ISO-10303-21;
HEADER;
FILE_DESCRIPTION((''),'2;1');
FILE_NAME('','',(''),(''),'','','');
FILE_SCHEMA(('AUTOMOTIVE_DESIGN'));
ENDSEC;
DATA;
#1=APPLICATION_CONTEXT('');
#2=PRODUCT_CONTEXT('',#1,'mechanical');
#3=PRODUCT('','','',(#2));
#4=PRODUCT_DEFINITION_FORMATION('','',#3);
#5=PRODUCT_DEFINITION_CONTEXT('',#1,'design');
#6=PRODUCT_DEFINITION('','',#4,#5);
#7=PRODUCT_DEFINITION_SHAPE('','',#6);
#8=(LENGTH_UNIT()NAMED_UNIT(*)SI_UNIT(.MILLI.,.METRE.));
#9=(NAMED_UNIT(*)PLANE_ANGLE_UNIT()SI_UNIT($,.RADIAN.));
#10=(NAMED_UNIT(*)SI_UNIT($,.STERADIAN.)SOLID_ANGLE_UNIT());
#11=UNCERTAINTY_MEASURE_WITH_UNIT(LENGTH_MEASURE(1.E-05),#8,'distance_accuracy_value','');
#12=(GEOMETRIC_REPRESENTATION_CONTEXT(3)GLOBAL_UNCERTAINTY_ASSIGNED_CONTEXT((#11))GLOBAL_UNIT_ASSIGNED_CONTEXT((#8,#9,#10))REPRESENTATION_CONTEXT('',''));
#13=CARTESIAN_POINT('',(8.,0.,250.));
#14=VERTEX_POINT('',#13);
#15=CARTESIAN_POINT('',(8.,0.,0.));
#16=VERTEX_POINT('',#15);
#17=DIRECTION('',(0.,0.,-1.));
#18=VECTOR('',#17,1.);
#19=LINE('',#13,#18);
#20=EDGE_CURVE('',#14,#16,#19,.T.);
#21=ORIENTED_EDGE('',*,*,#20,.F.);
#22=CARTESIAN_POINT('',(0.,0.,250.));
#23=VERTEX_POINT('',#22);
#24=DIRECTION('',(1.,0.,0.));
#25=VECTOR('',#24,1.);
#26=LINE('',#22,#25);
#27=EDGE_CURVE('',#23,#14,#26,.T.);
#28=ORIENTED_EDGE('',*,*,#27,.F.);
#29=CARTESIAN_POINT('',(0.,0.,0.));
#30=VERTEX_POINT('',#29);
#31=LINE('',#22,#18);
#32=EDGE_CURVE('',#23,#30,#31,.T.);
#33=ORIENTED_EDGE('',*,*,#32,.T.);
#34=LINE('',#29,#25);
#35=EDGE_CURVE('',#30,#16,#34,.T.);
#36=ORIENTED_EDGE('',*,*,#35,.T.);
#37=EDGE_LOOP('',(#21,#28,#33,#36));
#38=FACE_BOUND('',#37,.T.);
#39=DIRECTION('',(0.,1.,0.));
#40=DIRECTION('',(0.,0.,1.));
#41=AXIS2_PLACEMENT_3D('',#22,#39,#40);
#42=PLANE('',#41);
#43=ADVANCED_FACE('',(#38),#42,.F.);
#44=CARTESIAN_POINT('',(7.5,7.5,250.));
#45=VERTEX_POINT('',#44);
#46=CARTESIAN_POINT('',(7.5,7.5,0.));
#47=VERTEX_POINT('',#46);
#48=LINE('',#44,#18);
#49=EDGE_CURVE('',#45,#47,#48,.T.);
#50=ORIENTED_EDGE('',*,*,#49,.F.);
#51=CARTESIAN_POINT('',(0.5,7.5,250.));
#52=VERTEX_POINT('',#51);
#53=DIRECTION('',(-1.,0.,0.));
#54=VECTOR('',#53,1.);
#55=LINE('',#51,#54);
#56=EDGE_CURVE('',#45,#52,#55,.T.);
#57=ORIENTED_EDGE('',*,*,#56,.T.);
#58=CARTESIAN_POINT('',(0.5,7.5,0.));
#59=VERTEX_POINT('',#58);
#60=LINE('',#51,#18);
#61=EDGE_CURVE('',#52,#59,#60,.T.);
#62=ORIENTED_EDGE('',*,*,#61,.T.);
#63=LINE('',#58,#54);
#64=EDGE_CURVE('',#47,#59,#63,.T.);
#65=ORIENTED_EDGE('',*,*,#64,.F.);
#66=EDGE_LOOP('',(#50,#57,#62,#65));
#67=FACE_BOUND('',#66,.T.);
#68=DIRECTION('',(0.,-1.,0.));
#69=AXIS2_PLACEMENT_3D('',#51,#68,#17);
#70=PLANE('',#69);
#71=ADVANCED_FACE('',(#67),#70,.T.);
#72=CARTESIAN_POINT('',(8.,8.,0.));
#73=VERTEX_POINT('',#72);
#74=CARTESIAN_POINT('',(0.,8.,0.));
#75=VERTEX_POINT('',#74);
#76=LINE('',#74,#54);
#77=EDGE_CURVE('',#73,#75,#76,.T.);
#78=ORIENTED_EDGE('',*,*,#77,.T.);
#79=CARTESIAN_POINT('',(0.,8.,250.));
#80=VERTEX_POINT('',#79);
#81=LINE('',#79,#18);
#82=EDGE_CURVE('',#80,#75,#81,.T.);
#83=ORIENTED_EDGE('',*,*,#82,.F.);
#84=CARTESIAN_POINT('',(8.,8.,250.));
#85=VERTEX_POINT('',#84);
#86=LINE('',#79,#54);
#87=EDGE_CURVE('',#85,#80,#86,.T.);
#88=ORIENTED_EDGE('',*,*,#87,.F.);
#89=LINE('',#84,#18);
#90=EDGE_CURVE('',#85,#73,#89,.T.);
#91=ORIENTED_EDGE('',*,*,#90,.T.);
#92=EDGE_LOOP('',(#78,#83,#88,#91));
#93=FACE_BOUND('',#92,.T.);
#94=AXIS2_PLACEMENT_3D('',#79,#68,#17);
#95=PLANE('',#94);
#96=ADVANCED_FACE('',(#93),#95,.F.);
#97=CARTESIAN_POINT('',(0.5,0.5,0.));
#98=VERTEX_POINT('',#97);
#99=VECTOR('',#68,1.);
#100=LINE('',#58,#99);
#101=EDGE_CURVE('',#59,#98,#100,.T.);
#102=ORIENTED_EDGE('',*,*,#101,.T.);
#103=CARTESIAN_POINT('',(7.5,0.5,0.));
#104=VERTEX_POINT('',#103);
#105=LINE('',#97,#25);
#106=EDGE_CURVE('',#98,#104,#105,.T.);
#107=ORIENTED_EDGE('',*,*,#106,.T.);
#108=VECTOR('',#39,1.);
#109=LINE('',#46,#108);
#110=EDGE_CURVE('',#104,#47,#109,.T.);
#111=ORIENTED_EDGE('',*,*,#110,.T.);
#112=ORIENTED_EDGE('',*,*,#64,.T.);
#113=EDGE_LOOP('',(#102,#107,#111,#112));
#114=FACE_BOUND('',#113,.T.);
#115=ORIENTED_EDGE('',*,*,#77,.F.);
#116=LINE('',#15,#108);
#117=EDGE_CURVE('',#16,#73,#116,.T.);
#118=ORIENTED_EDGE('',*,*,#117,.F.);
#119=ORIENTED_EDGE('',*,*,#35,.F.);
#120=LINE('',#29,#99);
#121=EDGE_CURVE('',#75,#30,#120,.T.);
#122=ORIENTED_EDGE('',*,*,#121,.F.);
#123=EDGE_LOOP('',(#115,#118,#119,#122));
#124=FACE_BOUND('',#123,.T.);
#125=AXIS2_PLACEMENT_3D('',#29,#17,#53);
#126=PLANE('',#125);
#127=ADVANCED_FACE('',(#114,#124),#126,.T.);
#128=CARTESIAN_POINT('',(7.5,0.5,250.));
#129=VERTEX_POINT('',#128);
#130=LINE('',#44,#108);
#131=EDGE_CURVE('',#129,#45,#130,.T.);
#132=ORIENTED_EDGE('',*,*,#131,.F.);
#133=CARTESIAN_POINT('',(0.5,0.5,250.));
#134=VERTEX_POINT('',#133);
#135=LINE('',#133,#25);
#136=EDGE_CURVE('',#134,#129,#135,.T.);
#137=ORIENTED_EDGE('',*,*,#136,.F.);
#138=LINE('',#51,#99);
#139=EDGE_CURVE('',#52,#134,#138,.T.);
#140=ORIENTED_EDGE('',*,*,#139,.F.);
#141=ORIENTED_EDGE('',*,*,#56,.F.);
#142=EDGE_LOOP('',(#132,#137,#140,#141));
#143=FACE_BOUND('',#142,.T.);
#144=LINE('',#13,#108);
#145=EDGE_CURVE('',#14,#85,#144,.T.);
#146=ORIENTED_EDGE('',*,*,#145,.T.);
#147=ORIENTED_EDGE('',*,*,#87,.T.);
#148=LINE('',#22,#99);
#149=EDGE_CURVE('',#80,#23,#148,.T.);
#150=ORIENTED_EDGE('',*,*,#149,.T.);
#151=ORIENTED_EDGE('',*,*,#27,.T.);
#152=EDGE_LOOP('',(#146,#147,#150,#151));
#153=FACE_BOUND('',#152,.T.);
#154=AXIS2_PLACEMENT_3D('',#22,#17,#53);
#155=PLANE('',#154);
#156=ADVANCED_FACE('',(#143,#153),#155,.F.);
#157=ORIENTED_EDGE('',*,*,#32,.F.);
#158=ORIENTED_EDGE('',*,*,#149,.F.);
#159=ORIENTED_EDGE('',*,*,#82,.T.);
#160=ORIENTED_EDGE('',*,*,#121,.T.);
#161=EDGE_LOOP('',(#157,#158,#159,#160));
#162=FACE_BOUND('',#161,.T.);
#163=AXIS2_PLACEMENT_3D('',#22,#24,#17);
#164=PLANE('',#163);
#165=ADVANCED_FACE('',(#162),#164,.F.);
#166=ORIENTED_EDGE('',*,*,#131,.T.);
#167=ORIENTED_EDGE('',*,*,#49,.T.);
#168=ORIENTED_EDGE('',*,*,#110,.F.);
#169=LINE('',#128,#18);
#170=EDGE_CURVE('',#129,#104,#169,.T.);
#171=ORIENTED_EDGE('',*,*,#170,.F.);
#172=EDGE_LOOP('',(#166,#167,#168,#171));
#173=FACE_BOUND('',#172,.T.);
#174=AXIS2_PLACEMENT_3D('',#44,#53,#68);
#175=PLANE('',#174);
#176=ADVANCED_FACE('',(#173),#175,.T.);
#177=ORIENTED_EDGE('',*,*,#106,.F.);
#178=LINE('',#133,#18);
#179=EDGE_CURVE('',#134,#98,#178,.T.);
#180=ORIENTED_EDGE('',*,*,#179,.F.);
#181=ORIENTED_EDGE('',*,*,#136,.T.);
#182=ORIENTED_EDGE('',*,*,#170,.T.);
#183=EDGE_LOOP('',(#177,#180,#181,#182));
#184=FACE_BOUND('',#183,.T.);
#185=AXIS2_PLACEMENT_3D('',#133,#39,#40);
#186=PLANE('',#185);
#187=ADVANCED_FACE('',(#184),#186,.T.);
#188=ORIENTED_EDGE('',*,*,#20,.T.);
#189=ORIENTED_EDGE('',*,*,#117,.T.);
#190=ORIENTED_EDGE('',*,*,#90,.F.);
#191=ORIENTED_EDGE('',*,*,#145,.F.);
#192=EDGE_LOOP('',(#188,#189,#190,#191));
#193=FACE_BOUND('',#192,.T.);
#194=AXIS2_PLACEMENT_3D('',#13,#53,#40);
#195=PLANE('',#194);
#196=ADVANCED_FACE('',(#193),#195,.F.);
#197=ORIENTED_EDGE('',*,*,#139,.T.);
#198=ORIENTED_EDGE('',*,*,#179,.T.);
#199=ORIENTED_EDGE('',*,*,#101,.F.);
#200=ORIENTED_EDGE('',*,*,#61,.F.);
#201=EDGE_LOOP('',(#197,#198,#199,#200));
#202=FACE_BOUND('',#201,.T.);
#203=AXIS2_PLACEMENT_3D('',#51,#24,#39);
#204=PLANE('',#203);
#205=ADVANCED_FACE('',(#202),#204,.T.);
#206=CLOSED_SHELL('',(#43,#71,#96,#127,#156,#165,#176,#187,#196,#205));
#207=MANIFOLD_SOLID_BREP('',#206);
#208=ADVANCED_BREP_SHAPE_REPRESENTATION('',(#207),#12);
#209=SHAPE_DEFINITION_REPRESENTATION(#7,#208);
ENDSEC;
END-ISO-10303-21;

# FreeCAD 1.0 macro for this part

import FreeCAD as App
import Part
import Sketcher

V = App.Vector
Q = App.Units.Quantity

doc = App.newDocument("Part")
body = doc.addObject("PartDesign::Body", "Body")

# Sketch on XY plane
sketch1 = body.newObject("Sketcher::SketchObject", "Sketch")
sketch1.AttachmentSupport = (doc.getObject("XY_Plane"), [""])
sketch1.MapMode = "FlatFace"
sketch1.addGeometry([
    Part.LineSegment(V(0, 8, 0), V(0, 0, 0)),  # 0
    Part.LineSegment(V(0, 0, 0), V(8, 0, 0)),  # 1
    Part.LineSegment(V(8, 0, 0), V(8, 8, 0)),  # 2
    Part.LineSegment(V(8, 8, 0), V(0, 8, 0)),  # 3
    Part.LineSegment(V(7.5, 0.5, 0), V(0.5, 0.5, 0)),  # 4
    Part.LineSegment(V(0.5, 0.5, 0), V(0.5, 7.5, 0)),  # 5
    Part.LineSegment(V(0.5, 7.5, 0), V(7.5, 7.5, 0)),  # 6
    Part.LineSegment(V(7.5, 7.5, 0), V(7.5, 0.5, 0)),  # 7
], False)
sketch1.addConstraint([
    Sketcher.Constraint("Coincident", 0, 2, 1, 1),
    Sketcher.Constraint("Coincident", 1, 2, 2, 1),
    Sketcher.Constraint("Coincident", 2, 2, 3, 1),
    Sketcher.Constraint("Coincident", 3, 2, 0, 1),
    Sketcher.Constraint("Coincident", 4, 2, 5, 1),
    Sketcher.Constraint("Coincident", 5, 2, 6, 1),
    Sketcher.Constraint("Coincident", 6, 2, 7, 1),
    Sketcher.Constraint("Coincident", 7, 2, 4, 1),
    Sketcher.Constraint("Vertical", 0),
    Sketcher.Constraint("Horizontal", 1),
    Sketcher.Constraint("Vertical", 2),
    Sketcher.Constraint("Horizontal", 3),
    Sketcher.Constraint("Horizontal", 4),
    Sketcher.Constraint("Vertical", 5),
    Sketcher.Constraint("Horizontal", 6),
    Sketcher.Constraint("Vertical", 7),
    Sketcher.Constraint("Coincident", 0, 2, -1, 1),
    Sketcher.Constraint("Equal", 3, 0),
    Sketcher.Constraint("Equal", 6, 5),
    Sketcher.Constraint("DistanceX", 1, 1, 1, 2, Q("8 mm")),
    Sketcher.Constraint("DistanceX", 4, 2, 4, 1, Q("7 mm")),
    Sketcher.Constraint("DistanceX", -1, 1, 4, 2, Q("0.5 mm")),
    Sketcher.Constraint("DistanceY", -1, 1, 4, 2, Q("0.5 mm")),
])
pad1 = body.newObject("PartDesign::Pad", "Pad")
pad1.Profile = sketch1
pad1.Length = 250

doc.recompute()
